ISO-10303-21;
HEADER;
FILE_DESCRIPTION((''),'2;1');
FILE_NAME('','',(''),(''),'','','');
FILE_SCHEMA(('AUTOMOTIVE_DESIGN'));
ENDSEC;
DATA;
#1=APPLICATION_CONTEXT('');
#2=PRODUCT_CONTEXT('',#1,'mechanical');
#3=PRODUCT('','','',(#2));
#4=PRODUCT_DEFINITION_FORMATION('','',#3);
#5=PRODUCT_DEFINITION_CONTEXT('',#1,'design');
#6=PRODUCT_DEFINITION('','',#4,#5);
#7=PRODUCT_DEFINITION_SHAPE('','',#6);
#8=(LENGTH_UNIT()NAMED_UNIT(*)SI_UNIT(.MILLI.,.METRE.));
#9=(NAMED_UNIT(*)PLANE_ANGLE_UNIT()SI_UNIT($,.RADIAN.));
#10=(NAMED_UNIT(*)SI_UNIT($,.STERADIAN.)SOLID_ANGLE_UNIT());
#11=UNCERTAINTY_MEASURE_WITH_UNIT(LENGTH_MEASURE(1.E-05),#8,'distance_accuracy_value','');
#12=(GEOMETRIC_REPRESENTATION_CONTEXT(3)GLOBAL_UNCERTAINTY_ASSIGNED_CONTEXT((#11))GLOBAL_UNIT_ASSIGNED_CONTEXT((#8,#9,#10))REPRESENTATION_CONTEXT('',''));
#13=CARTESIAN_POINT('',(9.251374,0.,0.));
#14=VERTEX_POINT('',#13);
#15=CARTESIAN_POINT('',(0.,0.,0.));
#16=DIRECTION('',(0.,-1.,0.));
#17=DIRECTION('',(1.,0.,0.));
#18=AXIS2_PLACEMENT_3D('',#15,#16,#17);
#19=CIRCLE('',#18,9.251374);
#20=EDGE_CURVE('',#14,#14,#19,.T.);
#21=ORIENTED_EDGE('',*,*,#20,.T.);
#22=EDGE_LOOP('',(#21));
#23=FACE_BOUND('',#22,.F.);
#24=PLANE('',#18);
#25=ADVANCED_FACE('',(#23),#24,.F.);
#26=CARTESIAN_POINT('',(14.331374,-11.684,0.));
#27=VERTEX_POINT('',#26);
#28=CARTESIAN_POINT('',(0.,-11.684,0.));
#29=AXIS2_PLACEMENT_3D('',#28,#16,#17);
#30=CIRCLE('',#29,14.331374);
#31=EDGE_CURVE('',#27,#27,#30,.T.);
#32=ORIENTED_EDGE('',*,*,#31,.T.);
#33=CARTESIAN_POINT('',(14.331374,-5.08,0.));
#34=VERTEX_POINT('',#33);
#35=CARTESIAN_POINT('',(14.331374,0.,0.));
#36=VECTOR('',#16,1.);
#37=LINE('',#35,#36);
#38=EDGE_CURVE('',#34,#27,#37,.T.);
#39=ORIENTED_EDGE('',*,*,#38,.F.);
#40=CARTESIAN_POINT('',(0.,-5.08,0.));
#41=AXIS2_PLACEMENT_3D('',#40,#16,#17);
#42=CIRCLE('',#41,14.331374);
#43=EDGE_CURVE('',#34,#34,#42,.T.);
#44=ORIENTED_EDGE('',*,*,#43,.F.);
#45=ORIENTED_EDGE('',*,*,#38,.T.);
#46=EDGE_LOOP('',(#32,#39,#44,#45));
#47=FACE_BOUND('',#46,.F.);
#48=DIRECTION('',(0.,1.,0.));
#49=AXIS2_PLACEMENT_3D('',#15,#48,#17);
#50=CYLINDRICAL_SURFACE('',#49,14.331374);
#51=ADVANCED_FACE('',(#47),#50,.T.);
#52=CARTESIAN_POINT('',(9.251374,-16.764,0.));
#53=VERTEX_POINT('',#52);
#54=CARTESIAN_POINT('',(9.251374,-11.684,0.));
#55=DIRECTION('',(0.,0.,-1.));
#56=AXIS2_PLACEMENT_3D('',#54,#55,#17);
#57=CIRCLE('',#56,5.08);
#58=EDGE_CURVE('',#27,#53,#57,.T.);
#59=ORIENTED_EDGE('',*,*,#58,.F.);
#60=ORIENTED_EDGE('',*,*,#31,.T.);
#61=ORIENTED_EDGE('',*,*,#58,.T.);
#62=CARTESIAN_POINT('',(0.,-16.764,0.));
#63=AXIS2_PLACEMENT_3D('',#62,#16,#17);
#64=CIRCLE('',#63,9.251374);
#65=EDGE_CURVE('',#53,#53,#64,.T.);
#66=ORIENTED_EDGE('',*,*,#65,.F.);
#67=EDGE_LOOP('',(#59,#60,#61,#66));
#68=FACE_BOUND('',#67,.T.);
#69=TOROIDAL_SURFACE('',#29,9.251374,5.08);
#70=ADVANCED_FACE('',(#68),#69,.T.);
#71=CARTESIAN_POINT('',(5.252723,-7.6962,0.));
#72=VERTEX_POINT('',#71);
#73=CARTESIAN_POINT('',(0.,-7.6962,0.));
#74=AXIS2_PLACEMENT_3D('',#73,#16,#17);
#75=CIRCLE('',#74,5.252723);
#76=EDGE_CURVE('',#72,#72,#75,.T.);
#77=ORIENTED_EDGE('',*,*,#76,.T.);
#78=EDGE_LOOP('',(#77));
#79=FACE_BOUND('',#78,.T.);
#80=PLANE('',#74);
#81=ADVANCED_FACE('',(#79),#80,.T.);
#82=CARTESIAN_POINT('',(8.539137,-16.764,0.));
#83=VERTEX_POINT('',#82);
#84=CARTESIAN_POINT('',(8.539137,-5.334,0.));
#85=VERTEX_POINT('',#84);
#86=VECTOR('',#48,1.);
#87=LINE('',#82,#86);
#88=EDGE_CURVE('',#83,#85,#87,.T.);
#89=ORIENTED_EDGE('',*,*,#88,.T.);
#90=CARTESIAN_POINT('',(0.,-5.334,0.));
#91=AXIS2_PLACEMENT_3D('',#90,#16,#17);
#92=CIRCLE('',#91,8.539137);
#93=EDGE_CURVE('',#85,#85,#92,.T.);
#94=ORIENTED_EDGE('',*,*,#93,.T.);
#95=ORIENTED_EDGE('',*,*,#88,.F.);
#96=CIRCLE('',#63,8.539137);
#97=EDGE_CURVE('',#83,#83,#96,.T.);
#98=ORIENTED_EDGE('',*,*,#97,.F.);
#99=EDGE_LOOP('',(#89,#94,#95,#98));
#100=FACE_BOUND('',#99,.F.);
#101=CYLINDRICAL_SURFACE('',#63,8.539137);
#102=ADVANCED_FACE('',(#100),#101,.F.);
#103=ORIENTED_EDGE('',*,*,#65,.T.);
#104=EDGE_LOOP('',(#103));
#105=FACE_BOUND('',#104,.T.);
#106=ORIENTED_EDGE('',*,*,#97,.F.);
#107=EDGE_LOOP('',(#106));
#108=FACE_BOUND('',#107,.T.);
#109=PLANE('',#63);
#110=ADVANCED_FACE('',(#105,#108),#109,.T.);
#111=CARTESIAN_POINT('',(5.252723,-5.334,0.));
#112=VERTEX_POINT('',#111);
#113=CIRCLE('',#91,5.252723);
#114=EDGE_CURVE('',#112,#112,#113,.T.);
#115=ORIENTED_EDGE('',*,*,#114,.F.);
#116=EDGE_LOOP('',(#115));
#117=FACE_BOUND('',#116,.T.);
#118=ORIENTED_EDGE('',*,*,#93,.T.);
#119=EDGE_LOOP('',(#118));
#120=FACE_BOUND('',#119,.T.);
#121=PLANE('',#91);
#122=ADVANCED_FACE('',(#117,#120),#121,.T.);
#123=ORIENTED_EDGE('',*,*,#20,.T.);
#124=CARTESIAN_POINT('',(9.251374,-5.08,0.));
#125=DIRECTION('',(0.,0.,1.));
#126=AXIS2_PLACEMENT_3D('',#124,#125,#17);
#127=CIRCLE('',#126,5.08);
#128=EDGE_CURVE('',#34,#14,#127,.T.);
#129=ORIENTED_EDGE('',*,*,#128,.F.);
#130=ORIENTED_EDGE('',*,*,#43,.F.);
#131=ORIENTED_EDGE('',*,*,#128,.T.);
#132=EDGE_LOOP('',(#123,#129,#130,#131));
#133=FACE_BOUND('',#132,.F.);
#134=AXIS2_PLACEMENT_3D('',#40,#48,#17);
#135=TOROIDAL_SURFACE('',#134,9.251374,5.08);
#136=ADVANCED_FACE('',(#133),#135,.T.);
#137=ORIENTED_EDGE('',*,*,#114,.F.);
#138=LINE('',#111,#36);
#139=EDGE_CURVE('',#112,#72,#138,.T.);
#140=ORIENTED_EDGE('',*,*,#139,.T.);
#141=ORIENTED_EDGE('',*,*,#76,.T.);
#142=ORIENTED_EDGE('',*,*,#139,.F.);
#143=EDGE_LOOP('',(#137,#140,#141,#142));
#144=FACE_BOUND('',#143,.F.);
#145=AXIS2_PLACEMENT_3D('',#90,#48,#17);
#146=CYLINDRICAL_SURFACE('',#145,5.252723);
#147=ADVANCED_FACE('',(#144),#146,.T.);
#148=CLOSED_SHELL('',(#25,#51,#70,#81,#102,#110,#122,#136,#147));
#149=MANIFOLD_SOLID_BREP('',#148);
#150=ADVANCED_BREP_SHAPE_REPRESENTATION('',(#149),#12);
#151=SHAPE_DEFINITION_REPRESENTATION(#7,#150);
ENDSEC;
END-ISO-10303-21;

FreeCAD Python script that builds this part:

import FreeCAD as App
import Part
import Sketcher

V = App.Vector
Q = App.Units.Quantity


def edges_at(feature, points):
    """Names of the edges that pass closest to the given points."""
    edges = feature.Shape.Edges
    near = lambda p: min(range(len(edges)), key=lambda i: edges[i].distToShape(Part.Vertex(*p))[0])
    return sorted({f"Edge{near(p) + 1}" for p in points})

doc = App.newDocument("Part")
body = doc.addObject("PartDesign::Body", "Body")

# Sketch on XZ plane
sketch1 = doc.addObject("Sketcher::SketchObject", "Sketch")
body.addObject(sketch1)
sketch1.AttachmentSupport = (doc.XZ_Plane, [""])
sketch1.MapMode = "FlatFace"
sketch1.addGeometry(Part.Circle(V(0, 0, 0), V(0, 0, 1), 14.331374), False)
sketch1.addConstraint(Sketcher.Constraint("Coincident", 0, 3, -1, 1))
sketch1.addConstraint(Sketcher.Constraint("Diameter", 0, 28.662748))
pad1 = doc.addObject("PartDesign::Pad", "Pad")
body.addObject(pad1)
pad1.Profile = sketch1
pad1.Length = Q("0.66 in")
doc.recompute()

fillet = doc.addObject("PartDesign::Fillet", "Fillet")
body.addObject(fillet)
fillet.Base = (pad1, edges_at(pad1, [(-14.331, -16.764, 0)]))
fillet.Radius = Q("0.2 in")
doc.recompute()

fillet2 = doc.addObject("PartDesign::Fillet", "Fillet001")
body.addObject(fillet2)
fillet2.Base = (fillet, edges_at(fillet, [(-14.331, 0, 0)]))
fillet2.Radius = Q("0.2 in")

# Sketch on XZ plane
sketch2 = doc.addObject("Sketcher::SketchObject", "Sketch001")
body.addObject(sketch2)
sketch2.AttachmentSupport = (doc.XZ_Plane, [""])
sketch2.MapMode = "FlatFace"
sketch2.AttachmentOffset = App.Placement(V(0, 0, 0.66 * 25.4), App.Rotation())
sketch2.addGeometry(Part.Circle(V(0, 0, 0), V(0, 0, 1), 8.539137), False)
sketch2.addConstraint(Sketcher.Constraint("Coincident", 0, 3, -1, 1))
sketch2.addConstraint(Sketcher.Constraint("Diameter", 0, 17.078274))
pocket1 = doc.addObject("PartDesign::Pocket", "Pocket")
body.addObject(pocket1)
pocket1.Profile = sketch2
pocket1.Length = Q("0.45 in")

# Sketch on XZ plane
sketch3 = doc.addObject("Sketcher::SketchObject", "Sketch002")
body.addObject(sketch3)
sketch3.AttachmentSupport = (doc.XZ_Plane, [""])
sketch3.MapMode = "FlatFace"
sketch3.AttachmentOffset = App.Placement(V(0, 0, 0.21 * 25.4), App.Rotation())
sketch3.addGeometry(Part.Circle(V(0, 0, 0), V(0, 0, 1), 5.252723), False)
sketch3.addConstraint(Sketcher.Constraint("Coincident", 0, 3, -1, 1))
sketch3.addConstraint(Sketcher.Constraint("Diameter", 0, 10.505446))
pad2 = doc.addObject("PartDesign::Pad", "Pad001")
body.addObject(pad2)
pad2.Profile = sketch3
pad2.Length = Q("0.093 in")

doc.recompute()
